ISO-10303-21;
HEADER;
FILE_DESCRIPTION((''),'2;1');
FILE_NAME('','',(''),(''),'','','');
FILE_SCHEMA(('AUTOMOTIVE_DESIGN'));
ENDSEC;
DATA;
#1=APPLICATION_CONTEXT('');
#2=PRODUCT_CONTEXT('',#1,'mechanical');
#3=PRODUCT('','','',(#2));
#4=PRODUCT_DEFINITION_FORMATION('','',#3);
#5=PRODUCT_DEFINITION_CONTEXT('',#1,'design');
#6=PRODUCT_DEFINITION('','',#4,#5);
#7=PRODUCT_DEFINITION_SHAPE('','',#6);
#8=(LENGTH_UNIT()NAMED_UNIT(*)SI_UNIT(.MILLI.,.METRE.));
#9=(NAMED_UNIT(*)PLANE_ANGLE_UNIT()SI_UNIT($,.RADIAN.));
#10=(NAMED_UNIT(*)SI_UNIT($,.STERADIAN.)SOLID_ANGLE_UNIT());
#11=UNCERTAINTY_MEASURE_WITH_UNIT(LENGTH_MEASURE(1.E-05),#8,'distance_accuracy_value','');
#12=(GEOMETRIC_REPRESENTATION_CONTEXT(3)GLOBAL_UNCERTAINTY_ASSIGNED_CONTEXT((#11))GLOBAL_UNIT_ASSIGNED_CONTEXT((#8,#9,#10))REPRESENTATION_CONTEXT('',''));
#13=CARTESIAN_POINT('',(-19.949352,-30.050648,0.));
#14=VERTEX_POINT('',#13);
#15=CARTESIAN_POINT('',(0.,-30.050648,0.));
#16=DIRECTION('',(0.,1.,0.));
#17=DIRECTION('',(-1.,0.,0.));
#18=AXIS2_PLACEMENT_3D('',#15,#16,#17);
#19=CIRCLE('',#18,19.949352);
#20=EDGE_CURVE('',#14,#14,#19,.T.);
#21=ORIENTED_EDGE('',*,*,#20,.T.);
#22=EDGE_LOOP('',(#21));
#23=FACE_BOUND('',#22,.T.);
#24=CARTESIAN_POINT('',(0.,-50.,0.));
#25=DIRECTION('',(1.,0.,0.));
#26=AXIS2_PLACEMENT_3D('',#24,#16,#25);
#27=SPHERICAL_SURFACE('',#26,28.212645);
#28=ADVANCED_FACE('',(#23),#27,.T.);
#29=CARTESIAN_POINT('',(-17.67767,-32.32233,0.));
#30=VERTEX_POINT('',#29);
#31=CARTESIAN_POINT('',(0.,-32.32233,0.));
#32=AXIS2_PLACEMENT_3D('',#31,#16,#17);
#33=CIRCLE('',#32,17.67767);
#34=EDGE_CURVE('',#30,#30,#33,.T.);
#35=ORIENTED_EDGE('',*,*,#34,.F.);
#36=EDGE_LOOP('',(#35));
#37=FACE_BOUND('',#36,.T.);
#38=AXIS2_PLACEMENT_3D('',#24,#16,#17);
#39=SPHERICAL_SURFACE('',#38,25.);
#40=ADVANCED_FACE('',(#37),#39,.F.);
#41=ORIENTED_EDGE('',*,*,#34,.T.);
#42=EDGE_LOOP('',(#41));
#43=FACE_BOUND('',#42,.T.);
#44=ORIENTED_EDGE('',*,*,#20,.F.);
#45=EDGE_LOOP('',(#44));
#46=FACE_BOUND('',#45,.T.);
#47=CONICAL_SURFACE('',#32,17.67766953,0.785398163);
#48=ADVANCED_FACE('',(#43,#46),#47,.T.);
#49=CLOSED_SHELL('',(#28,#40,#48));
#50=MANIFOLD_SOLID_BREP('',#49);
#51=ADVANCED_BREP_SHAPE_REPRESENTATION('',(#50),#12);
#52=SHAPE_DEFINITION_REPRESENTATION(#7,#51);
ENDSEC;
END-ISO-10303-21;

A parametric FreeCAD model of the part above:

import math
import FreeCAD as App
import Part
import Sketcher
Q = App.Units.Quantity

doc = App.newDocument("Part")
body = doc.addObject("PartDesign::Body", "Body")

sketch1 = doc.addObject("Sketcher::SketchObject", "Sketch")
body.addObject(sketch1)
sketch1.AttachmentSupport = (doc.XY_Plane, [""])
sketch1.MapMode = "FlatFace"
sketch1.addGeometry([
    Part.LineSegment(App.Vector(17.67767, -32.32233, 0), App.Vector(19.949352, -30.050648, 0)),
    Part.ArcOfCircle(Part.Circle(App.Vector(0, -50, 0), App.Vector(0, 0, 1), 28.212645), math.radians(45), math.radians(90)),
    Part.LineSegment(App.Vector(0, -21.787355, 0), App.Vector(0, -25, 0)),
    Part.ArcOfCircle(Part.Circle(App.Vector(0, -50, 0), App.Vector(0, 0, 1), 25), math.radians(45), math.radians(90)),
], False)
sketch1.addConstraint([
    Sketcher.Constraint("Coincident", 0, 2, 1, 1),
    Sketcher.Constraint("Coincident", 1, 2, 2, 1),
    Sketcher.Constraint("Coincident", 2, 2, 3, 2),
    Sketcher.Constraint("Coincident", 3, 1, 0, 1),
    Sketcher.Constraint("Vertical", 2),
    Sketcher.Constraint("Coincident", 3, 3, 1, 3),
    Sketcher.Constraint("PointOnObject", 1, 3, -2),
    Sketcher.Constraint("PointOnObject", 1, 2, -2),
    Sketcher.Constraint("Radius", 3, Q("25 mm")),
    Sketcher.Constraint("Angle", 0, Q("45 deg")),
    Sketcher.Constraint("DistanceY", 1, 3, -1, 1, Q("50 mm")),
    Sketcher.Constraint("Radius", 1, Q("28.212645 mm")),
    Sketcher.Constraint("DistanceX", -1, 1, 3, 1, Q("17.67767 mm")),
])
revolution = doc.addObject("PartDesign::Revolution", "Revolution")
body.addObject(revolution)
revolution.Profile = sketch1
revolution.ReferenceAxis = (sketch1, ["V_Axis"])
revolution.Angle = 360

doc.recompute()
